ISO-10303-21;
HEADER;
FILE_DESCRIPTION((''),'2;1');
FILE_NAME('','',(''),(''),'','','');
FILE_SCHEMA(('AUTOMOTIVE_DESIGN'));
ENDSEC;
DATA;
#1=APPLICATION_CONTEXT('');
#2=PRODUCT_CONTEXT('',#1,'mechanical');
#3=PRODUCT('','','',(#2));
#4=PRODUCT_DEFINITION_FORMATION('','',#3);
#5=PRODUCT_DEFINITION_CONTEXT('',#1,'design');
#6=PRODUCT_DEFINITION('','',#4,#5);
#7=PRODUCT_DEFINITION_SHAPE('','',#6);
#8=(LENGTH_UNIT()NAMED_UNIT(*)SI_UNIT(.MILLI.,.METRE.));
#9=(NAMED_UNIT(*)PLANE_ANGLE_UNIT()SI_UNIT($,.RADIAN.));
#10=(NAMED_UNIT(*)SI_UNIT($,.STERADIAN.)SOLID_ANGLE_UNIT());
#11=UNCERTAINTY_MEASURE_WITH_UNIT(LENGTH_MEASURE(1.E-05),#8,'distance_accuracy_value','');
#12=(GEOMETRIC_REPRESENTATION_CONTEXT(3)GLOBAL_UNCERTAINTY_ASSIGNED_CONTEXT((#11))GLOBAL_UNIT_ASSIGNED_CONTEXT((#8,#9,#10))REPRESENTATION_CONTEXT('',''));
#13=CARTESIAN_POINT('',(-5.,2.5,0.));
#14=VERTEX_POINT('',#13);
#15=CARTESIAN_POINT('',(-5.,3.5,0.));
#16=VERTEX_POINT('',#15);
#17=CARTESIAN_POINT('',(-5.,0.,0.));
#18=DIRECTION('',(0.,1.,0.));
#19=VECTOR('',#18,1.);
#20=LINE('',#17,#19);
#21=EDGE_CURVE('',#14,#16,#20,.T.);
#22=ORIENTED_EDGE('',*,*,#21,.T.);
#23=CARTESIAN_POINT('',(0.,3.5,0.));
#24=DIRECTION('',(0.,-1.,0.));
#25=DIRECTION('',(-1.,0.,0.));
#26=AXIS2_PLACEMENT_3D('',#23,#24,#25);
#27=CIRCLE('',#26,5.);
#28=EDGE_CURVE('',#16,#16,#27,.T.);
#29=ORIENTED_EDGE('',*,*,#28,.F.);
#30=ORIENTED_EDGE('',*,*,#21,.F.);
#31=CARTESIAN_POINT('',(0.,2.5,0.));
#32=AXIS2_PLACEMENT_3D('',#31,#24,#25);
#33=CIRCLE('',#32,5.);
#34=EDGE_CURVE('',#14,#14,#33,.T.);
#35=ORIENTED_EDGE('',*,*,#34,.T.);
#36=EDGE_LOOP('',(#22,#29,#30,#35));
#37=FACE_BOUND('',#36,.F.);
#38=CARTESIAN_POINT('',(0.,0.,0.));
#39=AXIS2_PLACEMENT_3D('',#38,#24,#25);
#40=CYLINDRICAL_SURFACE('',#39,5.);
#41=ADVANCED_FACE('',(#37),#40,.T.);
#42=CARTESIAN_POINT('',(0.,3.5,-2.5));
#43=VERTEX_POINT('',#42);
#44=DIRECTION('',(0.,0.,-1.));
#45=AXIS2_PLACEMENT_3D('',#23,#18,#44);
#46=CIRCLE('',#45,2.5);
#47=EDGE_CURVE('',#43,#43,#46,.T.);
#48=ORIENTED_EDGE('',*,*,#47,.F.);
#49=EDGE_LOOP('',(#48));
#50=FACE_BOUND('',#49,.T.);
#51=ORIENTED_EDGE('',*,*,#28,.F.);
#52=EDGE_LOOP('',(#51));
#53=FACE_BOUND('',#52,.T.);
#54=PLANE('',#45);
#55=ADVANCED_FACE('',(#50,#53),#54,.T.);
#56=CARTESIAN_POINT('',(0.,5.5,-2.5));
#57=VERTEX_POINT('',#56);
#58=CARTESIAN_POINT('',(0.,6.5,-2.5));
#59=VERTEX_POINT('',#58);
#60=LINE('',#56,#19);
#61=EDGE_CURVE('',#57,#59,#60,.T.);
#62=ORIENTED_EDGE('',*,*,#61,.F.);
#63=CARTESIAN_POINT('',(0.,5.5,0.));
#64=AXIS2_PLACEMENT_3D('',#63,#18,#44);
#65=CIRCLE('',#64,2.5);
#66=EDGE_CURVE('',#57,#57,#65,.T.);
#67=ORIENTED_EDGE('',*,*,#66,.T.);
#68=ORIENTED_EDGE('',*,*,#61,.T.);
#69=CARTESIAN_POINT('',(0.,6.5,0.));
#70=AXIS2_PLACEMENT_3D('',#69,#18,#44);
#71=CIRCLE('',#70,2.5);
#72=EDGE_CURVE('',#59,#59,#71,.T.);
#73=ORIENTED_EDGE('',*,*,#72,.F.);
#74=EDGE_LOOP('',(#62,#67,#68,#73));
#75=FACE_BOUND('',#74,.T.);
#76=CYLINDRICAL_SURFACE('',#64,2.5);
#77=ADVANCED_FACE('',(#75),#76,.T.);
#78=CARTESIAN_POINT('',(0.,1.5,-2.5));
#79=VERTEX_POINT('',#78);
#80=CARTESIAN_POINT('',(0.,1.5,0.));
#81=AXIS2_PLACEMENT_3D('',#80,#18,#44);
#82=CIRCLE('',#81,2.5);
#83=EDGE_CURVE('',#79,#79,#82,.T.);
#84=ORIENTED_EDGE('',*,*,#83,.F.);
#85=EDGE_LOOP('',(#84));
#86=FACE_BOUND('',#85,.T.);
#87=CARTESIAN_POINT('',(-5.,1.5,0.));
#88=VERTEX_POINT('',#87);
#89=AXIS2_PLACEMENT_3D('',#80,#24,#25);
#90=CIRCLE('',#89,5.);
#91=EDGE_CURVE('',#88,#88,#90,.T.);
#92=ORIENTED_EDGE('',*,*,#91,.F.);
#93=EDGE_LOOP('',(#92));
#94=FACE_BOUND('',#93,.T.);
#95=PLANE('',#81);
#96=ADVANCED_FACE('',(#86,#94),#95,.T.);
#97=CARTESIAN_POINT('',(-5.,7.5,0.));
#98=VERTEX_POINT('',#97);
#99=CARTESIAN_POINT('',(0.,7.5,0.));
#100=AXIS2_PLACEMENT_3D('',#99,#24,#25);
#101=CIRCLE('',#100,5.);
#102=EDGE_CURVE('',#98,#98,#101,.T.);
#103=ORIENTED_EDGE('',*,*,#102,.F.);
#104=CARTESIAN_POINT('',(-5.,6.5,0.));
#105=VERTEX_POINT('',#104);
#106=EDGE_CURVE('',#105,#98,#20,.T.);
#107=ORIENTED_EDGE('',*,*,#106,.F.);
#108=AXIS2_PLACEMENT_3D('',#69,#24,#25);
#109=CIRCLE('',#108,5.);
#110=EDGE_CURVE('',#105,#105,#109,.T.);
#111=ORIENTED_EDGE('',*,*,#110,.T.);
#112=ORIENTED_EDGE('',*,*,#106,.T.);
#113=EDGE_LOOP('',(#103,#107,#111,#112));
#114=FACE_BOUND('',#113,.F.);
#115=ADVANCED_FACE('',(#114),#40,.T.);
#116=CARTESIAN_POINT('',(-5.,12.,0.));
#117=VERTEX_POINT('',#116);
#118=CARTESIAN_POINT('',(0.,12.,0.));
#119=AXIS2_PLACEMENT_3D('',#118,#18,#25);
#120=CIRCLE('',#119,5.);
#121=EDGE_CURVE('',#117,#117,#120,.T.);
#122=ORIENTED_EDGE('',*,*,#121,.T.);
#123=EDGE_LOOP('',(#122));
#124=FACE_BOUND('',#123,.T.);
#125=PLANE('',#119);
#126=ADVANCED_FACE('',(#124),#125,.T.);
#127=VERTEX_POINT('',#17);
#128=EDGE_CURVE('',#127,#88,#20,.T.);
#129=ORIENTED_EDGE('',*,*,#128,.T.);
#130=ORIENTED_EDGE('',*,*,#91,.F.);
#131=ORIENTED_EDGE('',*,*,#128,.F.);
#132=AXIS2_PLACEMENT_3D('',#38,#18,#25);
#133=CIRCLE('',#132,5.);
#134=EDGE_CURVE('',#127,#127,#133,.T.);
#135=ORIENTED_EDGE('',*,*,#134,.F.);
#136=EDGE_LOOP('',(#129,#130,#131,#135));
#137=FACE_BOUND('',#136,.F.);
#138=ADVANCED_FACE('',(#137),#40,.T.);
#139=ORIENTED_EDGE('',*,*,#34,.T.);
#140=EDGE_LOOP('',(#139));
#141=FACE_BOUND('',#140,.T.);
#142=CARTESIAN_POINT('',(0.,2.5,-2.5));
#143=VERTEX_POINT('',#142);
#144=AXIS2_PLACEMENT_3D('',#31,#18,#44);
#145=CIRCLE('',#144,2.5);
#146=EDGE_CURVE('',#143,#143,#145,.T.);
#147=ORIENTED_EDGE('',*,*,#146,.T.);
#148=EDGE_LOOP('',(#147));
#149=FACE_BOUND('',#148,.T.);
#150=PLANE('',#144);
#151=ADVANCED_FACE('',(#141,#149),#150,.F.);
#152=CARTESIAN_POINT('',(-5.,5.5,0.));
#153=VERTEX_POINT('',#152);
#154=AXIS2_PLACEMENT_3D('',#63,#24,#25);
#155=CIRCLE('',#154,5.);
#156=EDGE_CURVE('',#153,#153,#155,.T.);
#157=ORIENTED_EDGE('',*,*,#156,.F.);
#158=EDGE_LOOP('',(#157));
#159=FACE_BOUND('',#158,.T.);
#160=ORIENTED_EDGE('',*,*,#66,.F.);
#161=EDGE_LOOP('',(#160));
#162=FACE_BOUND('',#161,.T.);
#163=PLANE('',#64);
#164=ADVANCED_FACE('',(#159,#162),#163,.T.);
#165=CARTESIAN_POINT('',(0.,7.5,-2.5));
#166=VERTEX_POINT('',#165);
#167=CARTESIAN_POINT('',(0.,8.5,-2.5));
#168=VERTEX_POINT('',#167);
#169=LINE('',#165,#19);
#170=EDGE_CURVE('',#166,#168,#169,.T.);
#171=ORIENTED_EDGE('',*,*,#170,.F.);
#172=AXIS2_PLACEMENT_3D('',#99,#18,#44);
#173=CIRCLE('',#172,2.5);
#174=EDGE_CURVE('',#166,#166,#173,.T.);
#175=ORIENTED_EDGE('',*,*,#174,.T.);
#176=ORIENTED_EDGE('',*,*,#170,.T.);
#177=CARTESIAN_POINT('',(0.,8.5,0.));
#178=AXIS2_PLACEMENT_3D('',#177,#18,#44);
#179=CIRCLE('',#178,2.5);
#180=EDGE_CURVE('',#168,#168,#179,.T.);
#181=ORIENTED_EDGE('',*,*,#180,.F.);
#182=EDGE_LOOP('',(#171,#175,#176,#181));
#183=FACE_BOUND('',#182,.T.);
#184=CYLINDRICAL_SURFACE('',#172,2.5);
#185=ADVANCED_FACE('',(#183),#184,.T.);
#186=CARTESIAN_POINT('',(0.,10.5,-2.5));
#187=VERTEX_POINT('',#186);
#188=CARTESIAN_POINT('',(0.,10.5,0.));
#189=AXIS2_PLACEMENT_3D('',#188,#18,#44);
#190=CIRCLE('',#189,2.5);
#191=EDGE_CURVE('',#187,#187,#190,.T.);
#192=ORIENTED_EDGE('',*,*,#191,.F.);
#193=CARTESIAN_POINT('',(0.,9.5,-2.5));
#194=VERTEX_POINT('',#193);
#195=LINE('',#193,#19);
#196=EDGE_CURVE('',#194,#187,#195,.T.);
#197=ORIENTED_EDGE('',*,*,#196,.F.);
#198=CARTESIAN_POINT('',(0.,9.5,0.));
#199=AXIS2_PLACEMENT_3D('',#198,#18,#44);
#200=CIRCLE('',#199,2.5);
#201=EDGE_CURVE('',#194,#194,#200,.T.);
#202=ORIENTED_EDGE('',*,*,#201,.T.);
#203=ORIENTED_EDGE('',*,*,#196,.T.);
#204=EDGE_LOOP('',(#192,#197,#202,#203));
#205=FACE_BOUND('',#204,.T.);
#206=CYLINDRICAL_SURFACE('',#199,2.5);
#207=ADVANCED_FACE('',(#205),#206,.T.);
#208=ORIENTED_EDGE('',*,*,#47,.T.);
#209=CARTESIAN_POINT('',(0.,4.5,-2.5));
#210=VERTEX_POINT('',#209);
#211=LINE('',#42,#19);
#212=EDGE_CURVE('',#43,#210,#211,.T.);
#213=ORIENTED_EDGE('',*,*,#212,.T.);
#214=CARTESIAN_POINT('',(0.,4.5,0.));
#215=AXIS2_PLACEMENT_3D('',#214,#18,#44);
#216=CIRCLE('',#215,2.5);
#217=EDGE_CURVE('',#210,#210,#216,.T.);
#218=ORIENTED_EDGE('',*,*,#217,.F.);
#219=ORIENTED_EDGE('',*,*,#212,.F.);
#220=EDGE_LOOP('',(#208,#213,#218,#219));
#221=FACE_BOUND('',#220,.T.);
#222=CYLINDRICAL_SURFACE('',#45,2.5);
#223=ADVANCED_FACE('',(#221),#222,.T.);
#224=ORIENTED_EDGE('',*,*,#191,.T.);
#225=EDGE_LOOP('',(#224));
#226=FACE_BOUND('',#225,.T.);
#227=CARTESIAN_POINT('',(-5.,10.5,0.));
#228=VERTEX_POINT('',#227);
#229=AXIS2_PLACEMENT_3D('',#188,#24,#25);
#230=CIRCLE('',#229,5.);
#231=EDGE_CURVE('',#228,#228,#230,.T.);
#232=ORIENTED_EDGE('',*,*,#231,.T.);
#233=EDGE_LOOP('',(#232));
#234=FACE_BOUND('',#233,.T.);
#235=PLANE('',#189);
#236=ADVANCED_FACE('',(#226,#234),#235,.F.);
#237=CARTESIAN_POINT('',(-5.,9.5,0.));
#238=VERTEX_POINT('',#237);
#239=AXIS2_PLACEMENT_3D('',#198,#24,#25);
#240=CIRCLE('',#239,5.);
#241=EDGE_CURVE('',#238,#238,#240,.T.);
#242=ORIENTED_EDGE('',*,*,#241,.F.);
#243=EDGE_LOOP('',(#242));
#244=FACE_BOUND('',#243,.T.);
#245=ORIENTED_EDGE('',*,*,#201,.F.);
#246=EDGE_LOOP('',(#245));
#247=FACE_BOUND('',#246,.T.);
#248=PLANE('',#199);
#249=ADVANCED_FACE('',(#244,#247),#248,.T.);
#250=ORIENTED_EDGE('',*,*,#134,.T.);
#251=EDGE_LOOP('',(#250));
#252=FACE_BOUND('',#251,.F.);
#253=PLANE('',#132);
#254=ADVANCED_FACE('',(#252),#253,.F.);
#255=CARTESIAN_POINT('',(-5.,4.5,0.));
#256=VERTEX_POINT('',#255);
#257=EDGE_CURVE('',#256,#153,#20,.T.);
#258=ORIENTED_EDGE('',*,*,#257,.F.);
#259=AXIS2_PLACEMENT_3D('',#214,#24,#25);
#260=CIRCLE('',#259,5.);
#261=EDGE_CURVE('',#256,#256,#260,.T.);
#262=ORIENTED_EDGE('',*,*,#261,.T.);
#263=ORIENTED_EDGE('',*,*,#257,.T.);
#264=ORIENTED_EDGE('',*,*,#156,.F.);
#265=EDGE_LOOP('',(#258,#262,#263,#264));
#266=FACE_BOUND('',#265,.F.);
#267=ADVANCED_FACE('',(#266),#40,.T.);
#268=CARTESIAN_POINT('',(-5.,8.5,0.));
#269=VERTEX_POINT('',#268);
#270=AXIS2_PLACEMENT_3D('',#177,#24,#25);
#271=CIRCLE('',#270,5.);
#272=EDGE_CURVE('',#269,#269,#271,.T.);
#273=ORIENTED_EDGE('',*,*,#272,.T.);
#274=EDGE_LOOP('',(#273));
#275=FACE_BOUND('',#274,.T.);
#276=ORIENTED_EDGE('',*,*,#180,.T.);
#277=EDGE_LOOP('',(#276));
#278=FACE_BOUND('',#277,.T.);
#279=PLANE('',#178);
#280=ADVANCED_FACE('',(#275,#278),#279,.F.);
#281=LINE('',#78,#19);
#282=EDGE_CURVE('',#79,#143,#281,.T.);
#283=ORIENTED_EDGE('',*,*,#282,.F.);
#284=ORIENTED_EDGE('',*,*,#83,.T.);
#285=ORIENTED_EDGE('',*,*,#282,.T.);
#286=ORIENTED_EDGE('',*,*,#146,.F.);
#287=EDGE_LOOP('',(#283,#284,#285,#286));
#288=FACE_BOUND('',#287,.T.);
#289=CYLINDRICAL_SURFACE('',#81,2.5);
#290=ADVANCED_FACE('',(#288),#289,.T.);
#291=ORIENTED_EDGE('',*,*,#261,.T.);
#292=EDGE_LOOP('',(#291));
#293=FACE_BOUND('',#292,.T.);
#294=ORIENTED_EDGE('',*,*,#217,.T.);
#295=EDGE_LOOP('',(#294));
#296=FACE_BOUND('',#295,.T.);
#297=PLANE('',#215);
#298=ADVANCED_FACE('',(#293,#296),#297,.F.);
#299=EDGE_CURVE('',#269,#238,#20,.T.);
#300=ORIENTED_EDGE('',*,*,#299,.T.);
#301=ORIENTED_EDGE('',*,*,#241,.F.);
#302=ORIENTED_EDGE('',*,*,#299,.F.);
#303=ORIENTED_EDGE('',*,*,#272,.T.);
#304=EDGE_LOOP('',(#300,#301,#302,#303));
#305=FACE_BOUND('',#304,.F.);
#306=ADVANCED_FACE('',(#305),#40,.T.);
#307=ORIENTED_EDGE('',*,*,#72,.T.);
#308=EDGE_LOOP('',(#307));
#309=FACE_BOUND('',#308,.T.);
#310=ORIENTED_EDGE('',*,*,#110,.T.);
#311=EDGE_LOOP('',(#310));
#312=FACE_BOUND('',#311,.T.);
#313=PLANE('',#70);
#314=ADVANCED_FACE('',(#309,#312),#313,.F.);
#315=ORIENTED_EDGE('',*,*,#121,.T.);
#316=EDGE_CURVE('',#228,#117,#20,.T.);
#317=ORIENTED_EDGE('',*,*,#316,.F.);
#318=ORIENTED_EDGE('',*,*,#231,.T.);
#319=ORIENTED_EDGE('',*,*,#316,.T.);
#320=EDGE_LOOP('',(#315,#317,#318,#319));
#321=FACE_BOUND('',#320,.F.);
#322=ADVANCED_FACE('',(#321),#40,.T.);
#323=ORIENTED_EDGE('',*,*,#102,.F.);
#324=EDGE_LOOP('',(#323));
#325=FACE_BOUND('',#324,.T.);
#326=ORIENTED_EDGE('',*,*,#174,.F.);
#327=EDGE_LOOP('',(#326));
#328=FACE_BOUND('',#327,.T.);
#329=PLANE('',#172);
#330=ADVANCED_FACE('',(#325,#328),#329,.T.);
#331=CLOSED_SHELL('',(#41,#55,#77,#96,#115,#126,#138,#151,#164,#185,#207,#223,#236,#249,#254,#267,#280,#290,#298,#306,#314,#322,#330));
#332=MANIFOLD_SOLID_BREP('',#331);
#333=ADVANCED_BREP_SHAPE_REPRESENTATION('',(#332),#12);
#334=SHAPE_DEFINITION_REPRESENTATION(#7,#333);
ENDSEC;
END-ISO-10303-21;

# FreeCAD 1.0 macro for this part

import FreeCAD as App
import Part
import Sketcher
Q = App.Units.Quantity


def add_polygon(sketch, points):
    """Adds a closed chain of lines whose ends are joined by coincident constraints."""
    first, n = sketch.GeometryCount, len(points)
    for a, b in zip(points, points[1:] + points[:1]):
        sketch.addGeometry(Part.LineSegment(App.Vector(*a, 0), App.Vector(*b, 0)), False)
    for i in range(n):
        sketch.addConstraint(Sketcher.Constraint("Coincident", first + i, 2, first + (i + 1) % n, 1))

doc = App.newDocument("Part")
body = doc.addObject("PartDesign::Body", "Body")

# Sketch on XZ plane
sketch1 = body.newObject("Sketcher::SketchObject", "Sketch")
sketch1.AttachmentSupport = (doc.getObject("XZ_Plane"), [""])
sketch1.MapMode = "FlatFace"
sketch1.addGeometry(Part.Circle(App.Vector(0, 0, 0), App.Vector(0, 0, 1), 5), False)
sketch1.addConstraint(Sketcher.Constraint("Coincident", 0, 3, -1, 1))
sketch1.addConstraint(Sketcher.Constraint("Diameter", 0, Q("10 mm")))
pad1 = body.newObject("PartDesign::Pad", "Pad")
pad1.Profile = sketch1
pad1.Length = 12
pad1.Reversed = True

# Sketch on YZ plane
sketch2 = body.newObject("Sketcher::SketchObject", "Sketch001")
sketch2.AttachmentSupport = (doc.getObject("YZ_Plane"), [""])
sketch2.MapMode = "FlatFace"
add_polygon(sketch2, [(2.5, -2.5), (1.5, -2.5), (1.5, -7.5), (2.5, -7.5)])  # lines 0-3
sketch2.addConstraint(Sketcher.Constraint("Horizontal", 0))
sketch2.addConstraint(Sketcher.Constraint("Vertical", 1))
sketch2.addConstraint(Sketcher.Constraint("Horizontal", 2))
sketch2.addConstraint(Sketcher.Constraint("Vertical", 3))
sketch2.addConstraint(Sketcher.Constraint("DistanceX", 0, 2, 0, 1, Q("1 mm")))
sketch2.addConstraint(Sketcher.Constraint("DistanceY", 1, 2, 1, 1, Q("5 mm")))
sketch2.addConstraint(Sketcher.Constraint("DistanceX", -1, 1, 0, 2, Q("1.5 mm")))
sketch2.addConstraint(Sketcher.Constraint("DistanceY", 0, 2, -1, 1, Q("2.5 mm")))
groove = body.newObject("PartDesign::Groove", "Groove")
groove.Profile = sketch2
groove.ReferenceAxis = (sketch2, ["H_Axis"])
groove.Angle = 360
doc.recompute()

linearpattern = body.newObject("PartDesign::LinearPattern", "LinearPattern")
linearpattern.Originals = [groove]
linearpattern.Direction = (doc.getObject("Y_Axis"), [""])
linearpattern.Mode = "offset"
linearpattern.Offset = 2
linearpattern.Occurrences = 5
body.Tip = linearpattern

doc.recompute()
